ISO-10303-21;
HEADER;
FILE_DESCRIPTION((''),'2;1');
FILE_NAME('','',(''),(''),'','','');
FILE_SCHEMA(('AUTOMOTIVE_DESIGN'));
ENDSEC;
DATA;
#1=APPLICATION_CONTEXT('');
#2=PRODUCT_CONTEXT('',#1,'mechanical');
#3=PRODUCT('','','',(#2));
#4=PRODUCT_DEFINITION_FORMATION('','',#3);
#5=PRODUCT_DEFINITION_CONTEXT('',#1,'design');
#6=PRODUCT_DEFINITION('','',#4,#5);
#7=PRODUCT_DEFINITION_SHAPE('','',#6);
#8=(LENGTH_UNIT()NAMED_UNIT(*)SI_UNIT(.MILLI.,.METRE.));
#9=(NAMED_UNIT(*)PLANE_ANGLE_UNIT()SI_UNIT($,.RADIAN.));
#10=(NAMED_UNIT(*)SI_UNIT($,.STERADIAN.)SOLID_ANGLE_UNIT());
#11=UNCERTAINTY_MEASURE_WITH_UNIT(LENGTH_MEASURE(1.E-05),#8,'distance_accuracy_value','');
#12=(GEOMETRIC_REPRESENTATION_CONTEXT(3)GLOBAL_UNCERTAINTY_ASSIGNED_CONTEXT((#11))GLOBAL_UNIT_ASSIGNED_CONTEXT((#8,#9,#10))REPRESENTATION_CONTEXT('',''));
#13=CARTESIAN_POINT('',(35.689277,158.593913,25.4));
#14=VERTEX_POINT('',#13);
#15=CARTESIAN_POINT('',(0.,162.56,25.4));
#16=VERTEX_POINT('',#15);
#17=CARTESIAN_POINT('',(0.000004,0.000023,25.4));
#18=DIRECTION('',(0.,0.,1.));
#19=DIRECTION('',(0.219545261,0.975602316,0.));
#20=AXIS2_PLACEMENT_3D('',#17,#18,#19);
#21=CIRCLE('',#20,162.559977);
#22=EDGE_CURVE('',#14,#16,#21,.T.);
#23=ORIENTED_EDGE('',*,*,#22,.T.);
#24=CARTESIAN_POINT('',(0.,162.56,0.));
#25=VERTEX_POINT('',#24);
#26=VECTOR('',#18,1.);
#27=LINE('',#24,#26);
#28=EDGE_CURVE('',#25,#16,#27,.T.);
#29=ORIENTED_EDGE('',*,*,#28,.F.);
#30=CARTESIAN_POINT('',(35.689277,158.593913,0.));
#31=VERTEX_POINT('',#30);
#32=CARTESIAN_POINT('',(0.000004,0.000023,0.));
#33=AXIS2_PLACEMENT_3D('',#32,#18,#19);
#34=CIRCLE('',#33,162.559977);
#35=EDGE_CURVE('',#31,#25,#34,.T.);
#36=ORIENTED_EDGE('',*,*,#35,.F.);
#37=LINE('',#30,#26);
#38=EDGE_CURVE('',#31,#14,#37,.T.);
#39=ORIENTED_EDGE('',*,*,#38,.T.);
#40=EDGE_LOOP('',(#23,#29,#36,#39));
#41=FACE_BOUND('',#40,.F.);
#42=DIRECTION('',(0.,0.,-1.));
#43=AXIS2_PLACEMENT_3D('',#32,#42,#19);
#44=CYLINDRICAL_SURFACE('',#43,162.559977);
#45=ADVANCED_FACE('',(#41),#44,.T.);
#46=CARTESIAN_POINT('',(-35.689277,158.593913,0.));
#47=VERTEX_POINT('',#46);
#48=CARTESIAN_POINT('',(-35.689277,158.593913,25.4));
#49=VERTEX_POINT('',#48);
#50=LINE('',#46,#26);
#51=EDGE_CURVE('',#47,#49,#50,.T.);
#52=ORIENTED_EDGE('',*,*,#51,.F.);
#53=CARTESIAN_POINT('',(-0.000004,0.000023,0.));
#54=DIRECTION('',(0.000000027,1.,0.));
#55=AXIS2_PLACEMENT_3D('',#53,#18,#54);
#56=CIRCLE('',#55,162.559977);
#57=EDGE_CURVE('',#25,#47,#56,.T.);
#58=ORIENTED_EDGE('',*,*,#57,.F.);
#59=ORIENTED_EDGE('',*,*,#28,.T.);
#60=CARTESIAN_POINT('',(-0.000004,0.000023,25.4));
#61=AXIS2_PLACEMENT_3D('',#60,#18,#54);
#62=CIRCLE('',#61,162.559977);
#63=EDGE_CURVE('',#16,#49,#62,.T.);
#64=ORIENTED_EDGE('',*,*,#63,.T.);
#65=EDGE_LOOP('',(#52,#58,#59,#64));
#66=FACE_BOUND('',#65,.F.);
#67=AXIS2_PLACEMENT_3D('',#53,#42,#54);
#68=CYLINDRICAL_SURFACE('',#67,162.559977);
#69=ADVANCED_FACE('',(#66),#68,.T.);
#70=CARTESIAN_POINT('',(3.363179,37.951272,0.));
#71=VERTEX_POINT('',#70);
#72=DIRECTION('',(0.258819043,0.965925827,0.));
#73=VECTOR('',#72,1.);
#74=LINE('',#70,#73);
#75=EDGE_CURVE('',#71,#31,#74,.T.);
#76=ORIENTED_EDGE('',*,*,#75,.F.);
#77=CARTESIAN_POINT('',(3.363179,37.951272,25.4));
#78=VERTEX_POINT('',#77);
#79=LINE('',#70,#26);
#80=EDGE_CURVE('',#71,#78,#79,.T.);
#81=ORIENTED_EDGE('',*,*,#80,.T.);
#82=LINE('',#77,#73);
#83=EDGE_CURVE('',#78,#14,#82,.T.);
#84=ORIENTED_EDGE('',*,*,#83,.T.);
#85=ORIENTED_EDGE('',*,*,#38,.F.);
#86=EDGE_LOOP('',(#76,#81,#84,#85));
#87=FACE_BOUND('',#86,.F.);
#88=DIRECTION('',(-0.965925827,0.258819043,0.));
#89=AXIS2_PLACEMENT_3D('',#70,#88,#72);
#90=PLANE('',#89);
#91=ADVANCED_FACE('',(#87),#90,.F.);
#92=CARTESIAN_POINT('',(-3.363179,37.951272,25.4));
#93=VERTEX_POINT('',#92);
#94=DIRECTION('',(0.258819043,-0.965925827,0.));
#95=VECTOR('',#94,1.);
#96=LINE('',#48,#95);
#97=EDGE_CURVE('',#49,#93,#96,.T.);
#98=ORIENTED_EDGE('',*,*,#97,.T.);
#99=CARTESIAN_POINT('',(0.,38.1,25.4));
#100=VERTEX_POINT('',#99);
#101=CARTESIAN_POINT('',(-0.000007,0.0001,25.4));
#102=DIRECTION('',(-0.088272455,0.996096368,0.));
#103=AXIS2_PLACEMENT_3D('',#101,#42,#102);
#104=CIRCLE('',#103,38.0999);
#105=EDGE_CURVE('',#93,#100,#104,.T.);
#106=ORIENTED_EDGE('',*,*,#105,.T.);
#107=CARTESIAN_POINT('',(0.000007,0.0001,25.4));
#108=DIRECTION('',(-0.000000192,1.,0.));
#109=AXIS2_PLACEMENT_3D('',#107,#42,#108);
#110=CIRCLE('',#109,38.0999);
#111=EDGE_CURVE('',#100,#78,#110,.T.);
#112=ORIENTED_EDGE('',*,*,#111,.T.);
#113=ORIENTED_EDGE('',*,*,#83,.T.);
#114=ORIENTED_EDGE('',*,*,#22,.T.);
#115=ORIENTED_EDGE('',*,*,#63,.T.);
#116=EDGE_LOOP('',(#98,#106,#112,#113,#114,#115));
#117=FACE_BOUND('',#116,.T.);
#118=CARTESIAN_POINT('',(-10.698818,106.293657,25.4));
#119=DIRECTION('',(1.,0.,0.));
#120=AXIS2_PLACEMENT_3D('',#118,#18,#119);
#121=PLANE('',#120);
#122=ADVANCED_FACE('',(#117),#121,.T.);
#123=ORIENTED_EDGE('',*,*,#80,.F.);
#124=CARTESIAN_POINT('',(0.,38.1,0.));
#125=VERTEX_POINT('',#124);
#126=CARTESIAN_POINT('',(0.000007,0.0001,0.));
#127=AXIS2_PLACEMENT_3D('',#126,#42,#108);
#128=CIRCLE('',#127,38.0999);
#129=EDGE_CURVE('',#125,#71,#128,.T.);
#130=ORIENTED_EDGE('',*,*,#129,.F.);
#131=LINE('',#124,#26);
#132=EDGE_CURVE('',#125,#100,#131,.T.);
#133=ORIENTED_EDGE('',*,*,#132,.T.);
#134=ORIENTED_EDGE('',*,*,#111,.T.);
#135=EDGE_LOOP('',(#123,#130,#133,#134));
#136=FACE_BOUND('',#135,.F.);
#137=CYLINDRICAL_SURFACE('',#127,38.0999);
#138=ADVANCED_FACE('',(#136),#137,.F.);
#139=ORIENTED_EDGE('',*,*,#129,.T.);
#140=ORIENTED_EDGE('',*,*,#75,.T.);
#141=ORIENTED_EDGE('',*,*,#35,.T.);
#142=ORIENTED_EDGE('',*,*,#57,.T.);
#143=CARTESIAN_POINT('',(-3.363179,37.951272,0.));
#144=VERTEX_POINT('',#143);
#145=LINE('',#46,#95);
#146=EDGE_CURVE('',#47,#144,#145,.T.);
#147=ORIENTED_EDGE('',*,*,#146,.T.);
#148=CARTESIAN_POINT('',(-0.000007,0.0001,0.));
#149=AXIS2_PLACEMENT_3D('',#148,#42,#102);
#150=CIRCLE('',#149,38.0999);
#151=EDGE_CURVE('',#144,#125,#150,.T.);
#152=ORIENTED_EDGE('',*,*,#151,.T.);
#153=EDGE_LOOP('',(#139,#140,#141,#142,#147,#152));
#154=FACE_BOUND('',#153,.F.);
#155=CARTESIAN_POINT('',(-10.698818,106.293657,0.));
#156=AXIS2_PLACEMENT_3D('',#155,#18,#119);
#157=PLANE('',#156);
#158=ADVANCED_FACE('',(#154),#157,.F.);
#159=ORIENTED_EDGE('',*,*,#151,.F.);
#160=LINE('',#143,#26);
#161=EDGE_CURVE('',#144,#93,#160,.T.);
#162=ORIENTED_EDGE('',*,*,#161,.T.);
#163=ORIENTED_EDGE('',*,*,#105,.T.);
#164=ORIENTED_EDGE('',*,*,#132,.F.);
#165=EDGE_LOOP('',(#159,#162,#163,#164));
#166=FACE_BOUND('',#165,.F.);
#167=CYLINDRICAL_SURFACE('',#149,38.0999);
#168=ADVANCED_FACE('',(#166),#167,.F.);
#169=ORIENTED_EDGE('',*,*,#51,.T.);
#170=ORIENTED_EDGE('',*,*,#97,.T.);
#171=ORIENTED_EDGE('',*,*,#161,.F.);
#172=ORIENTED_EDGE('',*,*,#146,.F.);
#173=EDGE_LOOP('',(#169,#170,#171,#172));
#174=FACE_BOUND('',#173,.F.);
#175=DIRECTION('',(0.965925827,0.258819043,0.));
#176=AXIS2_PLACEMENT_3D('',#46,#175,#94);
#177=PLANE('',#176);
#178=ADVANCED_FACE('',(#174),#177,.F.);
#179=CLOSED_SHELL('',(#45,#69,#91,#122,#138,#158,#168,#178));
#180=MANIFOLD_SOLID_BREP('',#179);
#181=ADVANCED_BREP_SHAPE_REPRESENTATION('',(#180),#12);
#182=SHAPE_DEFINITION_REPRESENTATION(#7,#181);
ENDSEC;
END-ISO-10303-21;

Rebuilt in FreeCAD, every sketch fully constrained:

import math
import FreeCAD as App
import Part
import Sketcher

V = App.Vector
Q = App.Units.Quantity

doc = App.newDocument("Part")
body = doc.addObject("PartDesign::Body", "Body")

# Sketch on XY plane
sketch1 = doc.addObject("Sketcher::SketchObject", "Sketch")
body.addObject(sketch1)
sketch1.AttachmentSupport = (doc.XY_Plane, [""])
sketch1.MapMode = "FlatFace"
sketch1.addGeometry(Part.ArcOfCircle(Part.Circle(V(0, 0, 0), V(0, 0, 1), 38.1), math.radians(90), math.radians(95.06)), False)
sketch1.addGeometry(Part.ArcOfCircle(Part.Circle(V(0, 0, 0), V(0, 0, 1), 38.1), math.radians(84.94), math.radians(90)), False)
sketch1.addGeometry(Part.LineSegment(V(3.4, 38, 0), V(35.7, 158.6, 0)), False)
sketch1.addGeometry(Part.ArcOfCircle(Part.Circle(V(0, 0, 0), V(0, 0, 1), 162.6), math.radians(77.32), math.radians(90)), False)
sketch1.addGeometry(Part.ArcOfCircle(Part.Circle(V(0, 0, 0), V(0, 0, 1), 162.6), math.radians(90), math.radians(102.68)), False)
sketch1.addGeometry(Part.LineSegment(V(-35.7, 158.6, 0), V(-3.4, 38, 0)), False)
sketch1.addConstraint(Sketcher.Constraint("Tangent", 0, 1, 1, 2))
sketch1.addConstraint(Sketcher.Constraint("Coincident", 1, 1, 2, 1))
sketch1.addConstraint(Sketcher.Constraint("Coincident", 2, 2, 3, 1))
sketch1.addConstraint(Sketcher.Constraint("Tangent", 3, 2, 4, 1))
sketch1.addConstraint(Sketcher.Constraint("Coincident", 4, 2, 5, 1))
sketch1.addConstraint(Sketcher.Constraint("Coincident", 5, 2, 0, 2))
sketch1.addConstraint(Sketcher.Constraint("Equal", 0, 1))
sketch1.addConstraint(Sketcher.Constraint("Equal", 3, 4))
sketch1.addConstraint(Sketcher.Constraint("Symmetric", 2, 2, 4, 2, -2))
sketch1.addConstraint(Sketcher.Constraint("Symmetric", 1, 1, 5, 2, -2))
sketch1.addConstraint(Sketcher.Constraint("PointOnObject", 0, 1, -2))
sketch1.addConstraint(Sketcher.Constraint("PointOnObject", 3, 2, -2))
sketch1.addConstraint(Sketcher.Constraint("Angle", 2, Q("75 deg")))
sketch1.addConstraint(Sketcher.Constraint("DistanceY", -1, 1, 0, 1, Q("1.5 in")))
sketch1.addConstraint(Sketcher.Constraint("DistanceY", -1, 1, 3, 2, Q("6.4 in")))
sketch1.addConstraint(Sketcher.Constraint("Radius", 0, Q("38.0999 mm")))
sketch1.addConstraint(Sketcher.Constraint("Radius", 3, Q("162.559977 mm")))
sketch1.addConstraint(Sketcher.Constraint("DistanceX", -1, 1, 1, 1, Q("3.363179 mm")))
pad1 = doc.addObject("PartDesign::Pad", "Pad")
body.addObject(pad1)
pad1.Profile = sketch1
pad1.Length = Q("1 in")

doc.recompute()
